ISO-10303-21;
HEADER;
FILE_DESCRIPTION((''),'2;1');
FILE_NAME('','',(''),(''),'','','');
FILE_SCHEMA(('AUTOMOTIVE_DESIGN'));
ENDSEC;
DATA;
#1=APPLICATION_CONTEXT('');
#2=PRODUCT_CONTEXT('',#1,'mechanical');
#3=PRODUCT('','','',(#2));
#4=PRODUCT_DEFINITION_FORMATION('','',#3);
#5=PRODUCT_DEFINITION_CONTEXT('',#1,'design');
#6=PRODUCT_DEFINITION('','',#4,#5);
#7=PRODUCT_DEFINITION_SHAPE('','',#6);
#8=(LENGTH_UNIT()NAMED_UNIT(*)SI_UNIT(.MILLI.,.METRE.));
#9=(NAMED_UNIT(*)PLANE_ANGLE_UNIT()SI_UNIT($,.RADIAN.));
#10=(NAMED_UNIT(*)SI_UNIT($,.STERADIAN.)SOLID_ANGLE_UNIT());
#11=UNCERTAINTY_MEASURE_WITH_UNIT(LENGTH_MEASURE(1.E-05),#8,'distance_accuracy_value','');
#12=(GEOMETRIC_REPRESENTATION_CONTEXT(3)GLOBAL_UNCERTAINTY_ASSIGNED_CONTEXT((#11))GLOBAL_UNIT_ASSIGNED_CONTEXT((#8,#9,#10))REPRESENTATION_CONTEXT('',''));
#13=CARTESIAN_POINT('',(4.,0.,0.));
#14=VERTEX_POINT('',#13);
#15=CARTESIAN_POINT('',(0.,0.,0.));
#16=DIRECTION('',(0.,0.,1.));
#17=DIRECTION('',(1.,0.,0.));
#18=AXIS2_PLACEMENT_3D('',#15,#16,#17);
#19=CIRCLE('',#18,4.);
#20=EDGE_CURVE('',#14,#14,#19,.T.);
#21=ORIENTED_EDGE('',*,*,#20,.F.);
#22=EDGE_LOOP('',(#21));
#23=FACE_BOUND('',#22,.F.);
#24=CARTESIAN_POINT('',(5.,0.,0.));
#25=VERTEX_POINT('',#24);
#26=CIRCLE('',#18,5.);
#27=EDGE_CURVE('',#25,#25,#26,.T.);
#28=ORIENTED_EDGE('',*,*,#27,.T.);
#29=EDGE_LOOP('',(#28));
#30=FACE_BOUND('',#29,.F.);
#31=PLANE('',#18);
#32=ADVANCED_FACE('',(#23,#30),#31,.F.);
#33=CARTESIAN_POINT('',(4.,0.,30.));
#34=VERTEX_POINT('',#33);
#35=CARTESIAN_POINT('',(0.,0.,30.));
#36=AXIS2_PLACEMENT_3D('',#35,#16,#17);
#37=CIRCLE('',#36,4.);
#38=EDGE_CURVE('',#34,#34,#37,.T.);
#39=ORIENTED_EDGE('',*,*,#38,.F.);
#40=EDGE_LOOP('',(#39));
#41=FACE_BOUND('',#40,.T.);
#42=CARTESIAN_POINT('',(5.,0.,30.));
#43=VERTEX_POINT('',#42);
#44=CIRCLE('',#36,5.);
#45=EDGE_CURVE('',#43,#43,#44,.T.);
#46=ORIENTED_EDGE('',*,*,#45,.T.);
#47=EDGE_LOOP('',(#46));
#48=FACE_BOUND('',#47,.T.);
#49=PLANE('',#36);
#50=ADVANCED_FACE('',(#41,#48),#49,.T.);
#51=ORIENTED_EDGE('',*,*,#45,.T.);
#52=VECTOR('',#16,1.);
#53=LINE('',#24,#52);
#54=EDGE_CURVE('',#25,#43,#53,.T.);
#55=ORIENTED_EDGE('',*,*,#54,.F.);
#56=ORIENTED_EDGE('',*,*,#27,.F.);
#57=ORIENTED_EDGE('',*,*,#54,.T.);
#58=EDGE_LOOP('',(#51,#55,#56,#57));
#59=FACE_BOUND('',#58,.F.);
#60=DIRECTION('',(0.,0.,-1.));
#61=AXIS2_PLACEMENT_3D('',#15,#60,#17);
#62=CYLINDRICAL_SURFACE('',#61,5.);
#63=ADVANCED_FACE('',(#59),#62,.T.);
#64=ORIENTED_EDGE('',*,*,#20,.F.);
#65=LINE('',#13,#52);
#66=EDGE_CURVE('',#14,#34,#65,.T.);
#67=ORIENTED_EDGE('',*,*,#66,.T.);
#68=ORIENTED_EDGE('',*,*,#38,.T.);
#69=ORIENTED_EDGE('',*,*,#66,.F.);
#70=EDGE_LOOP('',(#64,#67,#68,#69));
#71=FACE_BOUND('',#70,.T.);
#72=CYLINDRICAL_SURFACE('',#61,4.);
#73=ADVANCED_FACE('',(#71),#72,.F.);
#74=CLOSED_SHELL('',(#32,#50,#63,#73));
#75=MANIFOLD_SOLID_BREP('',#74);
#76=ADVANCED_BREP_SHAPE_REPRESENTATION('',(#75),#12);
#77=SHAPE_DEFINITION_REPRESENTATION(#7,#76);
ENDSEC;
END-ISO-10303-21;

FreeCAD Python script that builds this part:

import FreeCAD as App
import Part
import Sketcher
Q = App.Units.Quantity

doc = App.newDocument("Part")
params = doc.addObject("Spreadsheet::Sheet", "Params")
for row, (alias, value) in enumerate([
    ("sketch1_diameter", "10 mm"),
    ("sketch1_diameter2", "8 mm"),
    ("pad1_length", "30 mm"),
], start=1):
    params.set(f"A{row}", alias)
    params.set(f"B{row}", "=" + value)
    params.setAlias(f"B{row}", alias)

body = doc.addObject("PartDesign::Body", "Body")

sketch1 = body.newObject("Sketcher::SketchObject", "Sketch")
sketch1.AttachmentSupport = (doc.getObject("XY_Plane"), [""])
sketch1.MapMode = "FlatFace"
sketch1.addGeometry([
    Part.Circle(App.Vector(0, 0, 0), App.Vector(0, 0, 1), 5),
    Part.Circle(App.Vector(0, 0, 0), App.Vector(0, 0, 1), 4),
], False)
sketch1.addConstraint([
    Sketcher.Constraint("Coincident", 0, 3, -1, 1),
    Sketcher.Constraint("Coincident", 1, 3, -1, 1),
    Sketcher.Constraint("Diameter", 0, Q("10 mm")),
    Sketcher.Constraint("Diameter", 1, Q("8 mm")),
])
sketch1.setExpression("Constraints[2]", "Params.sketch1_diameter")
sketch1.setExpression("Constraints[3]", "Params.sketch1_diameter2")
pad1 = body.newObject("PartDesign::Pad", "Pad")
pad1.Profile = sketch1
pad1.setExpression("Length", "Params.pad1_length")

doc.recompute()
